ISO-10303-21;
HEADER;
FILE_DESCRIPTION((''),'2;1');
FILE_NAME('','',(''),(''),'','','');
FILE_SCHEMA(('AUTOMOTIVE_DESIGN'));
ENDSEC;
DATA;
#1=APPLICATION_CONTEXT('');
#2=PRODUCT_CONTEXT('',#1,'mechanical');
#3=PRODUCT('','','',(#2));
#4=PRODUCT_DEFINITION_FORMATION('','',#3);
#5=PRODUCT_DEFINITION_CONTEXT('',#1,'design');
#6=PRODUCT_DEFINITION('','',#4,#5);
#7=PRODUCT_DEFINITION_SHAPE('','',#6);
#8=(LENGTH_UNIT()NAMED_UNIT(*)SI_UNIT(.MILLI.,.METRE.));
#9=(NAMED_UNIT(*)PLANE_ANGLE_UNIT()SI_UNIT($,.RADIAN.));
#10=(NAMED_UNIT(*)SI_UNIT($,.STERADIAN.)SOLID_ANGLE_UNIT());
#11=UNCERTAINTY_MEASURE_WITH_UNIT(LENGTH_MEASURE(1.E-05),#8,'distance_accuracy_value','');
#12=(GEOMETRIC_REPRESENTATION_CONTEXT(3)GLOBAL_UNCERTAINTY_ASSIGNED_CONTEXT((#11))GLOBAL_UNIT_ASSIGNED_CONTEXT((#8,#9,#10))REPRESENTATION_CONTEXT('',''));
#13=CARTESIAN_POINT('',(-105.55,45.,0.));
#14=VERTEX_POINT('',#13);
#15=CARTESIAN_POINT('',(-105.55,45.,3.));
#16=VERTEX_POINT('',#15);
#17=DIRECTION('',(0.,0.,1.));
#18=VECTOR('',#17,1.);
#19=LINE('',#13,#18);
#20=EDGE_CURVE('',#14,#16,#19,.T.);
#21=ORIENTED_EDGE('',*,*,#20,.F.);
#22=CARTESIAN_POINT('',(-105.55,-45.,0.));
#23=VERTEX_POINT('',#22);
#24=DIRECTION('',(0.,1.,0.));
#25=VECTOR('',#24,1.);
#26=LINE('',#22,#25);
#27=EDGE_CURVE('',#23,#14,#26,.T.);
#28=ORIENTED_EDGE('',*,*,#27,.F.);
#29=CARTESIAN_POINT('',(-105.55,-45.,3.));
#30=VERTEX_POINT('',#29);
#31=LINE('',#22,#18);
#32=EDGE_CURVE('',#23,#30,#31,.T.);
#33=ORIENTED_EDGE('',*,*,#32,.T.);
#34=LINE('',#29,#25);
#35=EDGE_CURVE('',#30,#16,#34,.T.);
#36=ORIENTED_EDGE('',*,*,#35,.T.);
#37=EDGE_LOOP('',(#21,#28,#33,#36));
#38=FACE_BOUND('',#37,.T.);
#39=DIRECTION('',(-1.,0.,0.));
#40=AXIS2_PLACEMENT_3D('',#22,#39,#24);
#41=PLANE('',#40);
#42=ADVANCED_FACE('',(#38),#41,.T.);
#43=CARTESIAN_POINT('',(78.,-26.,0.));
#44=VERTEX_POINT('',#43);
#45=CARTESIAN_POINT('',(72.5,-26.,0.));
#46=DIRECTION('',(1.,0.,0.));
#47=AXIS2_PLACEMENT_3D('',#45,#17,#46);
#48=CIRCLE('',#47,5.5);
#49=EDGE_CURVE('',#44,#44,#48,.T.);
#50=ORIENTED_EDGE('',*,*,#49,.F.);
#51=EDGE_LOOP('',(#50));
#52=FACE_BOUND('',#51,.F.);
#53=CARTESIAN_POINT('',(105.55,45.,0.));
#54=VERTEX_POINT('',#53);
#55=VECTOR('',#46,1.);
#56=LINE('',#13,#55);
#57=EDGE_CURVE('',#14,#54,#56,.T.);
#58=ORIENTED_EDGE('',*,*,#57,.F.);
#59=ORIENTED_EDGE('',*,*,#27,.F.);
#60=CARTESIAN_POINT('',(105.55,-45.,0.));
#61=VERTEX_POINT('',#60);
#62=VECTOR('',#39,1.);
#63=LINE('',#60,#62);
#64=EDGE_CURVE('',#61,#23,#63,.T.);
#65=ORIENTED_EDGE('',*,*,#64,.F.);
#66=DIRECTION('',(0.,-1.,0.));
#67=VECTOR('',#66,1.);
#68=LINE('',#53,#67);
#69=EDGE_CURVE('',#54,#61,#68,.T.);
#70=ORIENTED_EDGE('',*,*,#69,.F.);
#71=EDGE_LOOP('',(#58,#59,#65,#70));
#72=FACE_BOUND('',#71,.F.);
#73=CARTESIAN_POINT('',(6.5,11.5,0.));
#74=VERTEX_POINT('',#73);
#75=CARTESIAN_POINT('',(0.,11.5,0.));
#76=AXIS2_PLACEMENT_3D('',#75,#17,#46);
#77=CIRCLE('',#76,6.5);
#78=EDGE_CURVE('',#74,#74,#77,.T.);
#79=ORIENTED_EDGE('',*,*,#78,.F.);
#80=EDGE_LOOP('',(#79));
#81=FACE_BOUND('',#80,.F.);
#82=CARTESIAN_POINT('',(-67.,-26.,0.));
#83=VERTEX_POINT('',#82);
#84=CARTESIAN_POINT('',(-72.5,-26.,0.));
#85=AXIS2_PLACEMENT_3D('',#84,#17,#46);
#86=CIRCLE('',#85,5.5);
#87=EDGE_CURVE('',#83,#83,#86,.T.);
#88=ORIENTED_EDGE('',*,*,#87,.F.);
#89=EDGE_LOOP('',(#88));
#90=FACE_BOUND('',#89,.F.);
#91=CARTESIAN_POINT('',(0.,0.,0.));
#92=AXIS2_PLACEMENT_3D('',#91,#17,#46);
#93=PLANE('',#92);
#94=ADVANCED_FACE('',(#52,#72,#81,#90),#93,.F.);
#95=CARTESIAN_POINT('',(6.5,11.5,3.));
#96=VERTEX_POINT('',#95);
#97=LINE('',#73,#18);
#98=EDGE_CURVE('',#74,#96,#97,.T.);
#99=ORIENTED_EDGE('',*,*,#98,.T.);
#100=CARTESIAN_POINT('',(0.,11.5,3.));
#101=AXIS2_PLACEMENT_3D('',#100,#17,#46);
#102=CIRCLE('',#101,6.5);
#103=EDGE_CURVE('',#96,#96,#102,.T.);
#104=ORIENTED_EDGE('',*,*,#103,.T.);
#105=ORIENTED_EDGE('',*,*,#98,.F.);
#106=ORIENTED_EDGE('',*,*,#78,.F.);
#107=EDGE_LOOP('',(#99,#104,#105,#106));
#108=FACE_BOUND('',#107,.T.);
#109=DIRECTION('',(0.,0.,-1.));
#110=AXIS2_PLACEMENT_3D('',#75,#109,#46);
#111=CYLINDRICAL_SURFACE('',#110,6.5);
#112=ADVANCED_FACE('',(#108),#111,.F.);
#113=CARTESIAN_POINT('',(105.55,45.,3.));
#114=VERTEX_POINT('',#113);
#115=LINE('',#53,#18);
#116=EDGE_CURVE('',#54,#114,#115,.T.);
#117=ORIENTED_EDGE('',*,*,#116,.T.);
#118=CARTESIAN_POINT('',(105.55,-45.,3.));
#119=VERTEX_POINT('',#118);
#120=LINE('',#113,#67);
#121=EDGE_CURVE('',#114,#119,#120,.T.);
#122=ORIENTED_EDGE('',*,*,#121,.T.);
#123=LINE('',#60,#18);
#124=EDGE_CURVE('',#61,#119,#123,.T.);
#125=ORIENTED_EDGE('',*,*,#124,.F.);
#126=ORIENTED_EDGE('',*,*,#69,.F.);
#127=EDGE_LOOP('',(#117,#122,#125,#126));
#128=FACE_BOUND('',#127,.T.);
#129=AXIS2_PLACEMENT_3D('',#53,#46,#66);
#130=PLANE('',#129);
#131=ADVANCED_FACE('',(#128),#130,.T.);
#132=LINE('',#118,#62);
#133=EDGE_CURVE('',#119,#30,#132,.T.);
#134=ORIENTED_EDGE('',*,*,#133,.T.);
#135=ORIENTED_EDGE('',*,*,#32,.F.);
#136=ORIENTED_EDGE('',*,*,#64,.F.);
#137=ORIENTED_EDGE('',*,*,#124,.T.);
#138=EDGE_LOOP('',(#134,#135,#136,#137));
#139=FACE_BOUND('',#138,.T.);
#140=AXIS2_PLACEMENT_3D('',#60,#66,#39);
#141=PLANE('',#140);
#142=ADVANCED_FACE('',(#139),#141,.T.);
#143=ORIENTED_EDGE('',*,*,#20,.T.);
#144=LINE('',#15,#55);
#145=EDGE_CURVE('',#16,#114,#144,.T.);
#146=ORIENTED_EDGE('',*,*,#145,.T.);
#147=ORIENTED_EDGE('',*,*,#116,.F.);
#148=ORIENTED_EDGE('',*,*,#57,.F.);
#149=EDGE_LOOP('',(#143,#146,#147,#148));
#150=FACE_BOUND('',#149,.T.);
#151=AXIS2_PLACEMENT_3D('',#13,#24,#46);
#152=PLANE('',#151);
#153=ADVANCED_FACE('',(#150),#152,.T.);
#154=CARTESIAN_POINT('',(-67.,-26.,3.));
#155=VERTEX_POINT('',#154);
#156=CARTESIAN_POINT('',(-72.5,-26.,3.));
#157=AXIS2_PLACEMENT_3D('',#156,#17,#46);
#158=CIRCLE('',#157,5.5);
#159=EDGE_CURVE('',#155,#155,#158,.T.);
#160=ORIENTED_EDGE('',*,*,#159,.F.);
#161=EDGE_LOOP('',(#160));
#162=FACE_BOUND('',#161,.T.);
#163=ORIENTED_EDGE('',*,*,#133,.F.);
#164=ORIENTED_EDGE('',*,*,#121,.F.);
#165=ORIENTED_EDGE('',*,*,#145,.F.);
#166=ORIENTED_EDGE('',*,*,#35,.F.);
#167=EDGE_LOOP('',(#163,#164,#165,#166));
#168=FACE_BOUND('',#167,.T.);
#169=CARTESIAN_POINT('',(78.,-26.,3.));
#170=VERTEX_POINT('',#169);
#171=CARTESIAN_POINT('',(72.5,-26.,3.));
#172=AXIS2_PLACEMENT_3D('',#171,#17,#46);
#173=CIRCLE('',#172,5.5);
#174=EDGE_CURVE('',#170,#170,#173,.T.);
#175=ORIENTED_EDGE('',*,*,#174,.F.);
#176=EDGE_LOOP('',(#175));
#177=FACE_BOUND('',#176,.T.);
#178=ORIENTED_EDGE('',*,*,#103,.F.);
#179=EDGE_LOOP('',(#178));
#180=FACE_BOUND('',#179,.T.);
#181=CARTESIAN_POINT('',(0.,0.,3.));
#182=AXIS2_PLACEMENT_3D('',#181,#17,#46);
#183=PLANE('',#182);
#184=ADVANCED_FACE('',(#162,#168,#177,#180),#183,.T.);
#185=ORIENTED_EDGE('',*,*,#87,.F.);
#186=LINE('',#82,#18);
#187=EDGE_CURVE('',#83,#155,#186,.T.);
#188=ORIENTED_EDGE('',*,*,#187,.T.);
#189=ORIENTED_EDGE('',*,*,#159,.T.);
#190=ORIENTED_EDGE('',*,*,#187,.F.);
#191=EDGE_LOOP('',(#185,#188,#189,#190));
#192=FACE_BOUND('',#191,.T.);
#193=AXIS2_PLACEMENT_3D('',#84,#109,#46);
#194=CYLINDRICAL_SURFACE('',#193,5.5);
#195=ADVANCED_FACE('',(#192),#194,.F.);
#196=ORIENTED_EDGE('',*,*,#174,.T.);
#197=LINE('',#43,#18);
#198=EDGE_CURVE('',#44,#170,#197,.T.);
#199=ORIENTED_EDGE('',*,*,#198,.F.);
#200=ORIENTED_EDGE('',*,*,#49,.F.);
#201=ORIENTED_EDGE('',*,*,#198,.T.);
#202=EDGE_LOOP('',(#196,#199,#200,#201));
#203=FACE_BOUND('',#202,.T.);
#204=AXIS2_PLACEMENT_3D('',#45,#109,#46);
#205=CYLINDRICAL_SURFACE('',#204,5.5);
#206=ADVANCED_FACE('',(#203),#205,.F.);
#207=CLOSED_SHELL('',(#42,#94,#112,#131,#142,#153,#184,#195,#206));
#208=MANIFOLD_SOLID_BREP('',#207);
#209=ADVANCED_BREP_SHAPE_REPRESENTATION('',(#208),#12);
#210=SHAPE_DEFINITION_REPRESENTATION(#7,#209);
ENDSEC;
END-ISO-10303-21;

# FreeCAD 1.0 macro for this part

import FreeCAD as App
import Part
import Sketcher
Q = App.Units.Quantity

doc = App.newDocument("Part")
body = doc.addObject("PartDesign::Body", "Body")

sketch1 = body.newObject("Sketcher::SketchObject", "Sketch")
sketch1.AttachmentSupport = (doc.getObject("XY_Plane"), [""])
sketch1.MapMode = "FlatFace"
sketch1.addGeometry([
    Part.LineSegment(App.Vector(106, 45, 0), App.Vector(-106, 45, 0)),
    Part.LineSegment(App.Vector(-106, 45, 0), App.Vector(-106, -45, 0)),
    Part.LineSegment(App.Vector(-106, -45, 0), App.Vector(106, -45, 0)),
    Part.LineSegment(App.Vector(106, -45, 0), App.Vector(106, 45, 0)),
    Part.Circle(App.Vector(-72, -26, 0), App.Vector(0, 0, 1), 6),
    Part.Circle(App.Vector(72, -26, 0), App.Vector(0, 0, 1), 6),
    Part.Circle(App.Vector(0, 12, 0), App.Vector(0, 0, 1), 6),
], False)
sketch1.addConstraint([
    Sketcher.Constraint("Coincident", 0, 2, 1, 1),
    Sketcher.Constraint("Coincident", 1, 2, 2, 1),
    Sketcher.Constraint("Coincident", 2, 2, 3, 1),
    Sketcher.Constraint("Coincident", 3, 2, 0, 1),
    Sketcher.Constraint("Horizontal", 0),
    Sketcher.Constraint("Vertical", 1),
    Sketcher.Constraint("Horizontal", 2),
    Sketcher.Constraint("Vertical", 3),
    Sketcher.Constraint("Equal", 4, 5),
    Sketcher.Constraint("Symmetric", 0, 2, 2, 2, -1, 1),
    Sketcher.Constraint("Symmetric", 4, 3, 5, 3, -2),
    Sketcher.Constraint("PointOnObject", 6, 3, -2),
    Sketcher.Constraint("Diameter", 4, Q("11 mm")),
    Sketcher.Constraint("Diameter", 6, Q("13 mm")),
    Sketcher.Constraint("DistanceY", 1, 2, 1, 1, Q("90 mm")),
    Sketcher.Constraint("DistanceX", 0, 2, 0, 1, Q("211.1 mm")),
    Sketcher.Constraint("DistanceY", 4, 3, -1, 1, Q("26 mm")),
    Sketcher.Constraint("DistanceX", 4, 3, 5, 3, Q("145 mm")),
    Sketcher.Constraint("DistanceY", -1, 1, 6, 3, Q("11.5 mm")),
])
pad1 = body.newObject("PartDesign::Pad", "Pad")
pad1.Profile = sketch1
pad1.Length = 3

doc.recompute()
